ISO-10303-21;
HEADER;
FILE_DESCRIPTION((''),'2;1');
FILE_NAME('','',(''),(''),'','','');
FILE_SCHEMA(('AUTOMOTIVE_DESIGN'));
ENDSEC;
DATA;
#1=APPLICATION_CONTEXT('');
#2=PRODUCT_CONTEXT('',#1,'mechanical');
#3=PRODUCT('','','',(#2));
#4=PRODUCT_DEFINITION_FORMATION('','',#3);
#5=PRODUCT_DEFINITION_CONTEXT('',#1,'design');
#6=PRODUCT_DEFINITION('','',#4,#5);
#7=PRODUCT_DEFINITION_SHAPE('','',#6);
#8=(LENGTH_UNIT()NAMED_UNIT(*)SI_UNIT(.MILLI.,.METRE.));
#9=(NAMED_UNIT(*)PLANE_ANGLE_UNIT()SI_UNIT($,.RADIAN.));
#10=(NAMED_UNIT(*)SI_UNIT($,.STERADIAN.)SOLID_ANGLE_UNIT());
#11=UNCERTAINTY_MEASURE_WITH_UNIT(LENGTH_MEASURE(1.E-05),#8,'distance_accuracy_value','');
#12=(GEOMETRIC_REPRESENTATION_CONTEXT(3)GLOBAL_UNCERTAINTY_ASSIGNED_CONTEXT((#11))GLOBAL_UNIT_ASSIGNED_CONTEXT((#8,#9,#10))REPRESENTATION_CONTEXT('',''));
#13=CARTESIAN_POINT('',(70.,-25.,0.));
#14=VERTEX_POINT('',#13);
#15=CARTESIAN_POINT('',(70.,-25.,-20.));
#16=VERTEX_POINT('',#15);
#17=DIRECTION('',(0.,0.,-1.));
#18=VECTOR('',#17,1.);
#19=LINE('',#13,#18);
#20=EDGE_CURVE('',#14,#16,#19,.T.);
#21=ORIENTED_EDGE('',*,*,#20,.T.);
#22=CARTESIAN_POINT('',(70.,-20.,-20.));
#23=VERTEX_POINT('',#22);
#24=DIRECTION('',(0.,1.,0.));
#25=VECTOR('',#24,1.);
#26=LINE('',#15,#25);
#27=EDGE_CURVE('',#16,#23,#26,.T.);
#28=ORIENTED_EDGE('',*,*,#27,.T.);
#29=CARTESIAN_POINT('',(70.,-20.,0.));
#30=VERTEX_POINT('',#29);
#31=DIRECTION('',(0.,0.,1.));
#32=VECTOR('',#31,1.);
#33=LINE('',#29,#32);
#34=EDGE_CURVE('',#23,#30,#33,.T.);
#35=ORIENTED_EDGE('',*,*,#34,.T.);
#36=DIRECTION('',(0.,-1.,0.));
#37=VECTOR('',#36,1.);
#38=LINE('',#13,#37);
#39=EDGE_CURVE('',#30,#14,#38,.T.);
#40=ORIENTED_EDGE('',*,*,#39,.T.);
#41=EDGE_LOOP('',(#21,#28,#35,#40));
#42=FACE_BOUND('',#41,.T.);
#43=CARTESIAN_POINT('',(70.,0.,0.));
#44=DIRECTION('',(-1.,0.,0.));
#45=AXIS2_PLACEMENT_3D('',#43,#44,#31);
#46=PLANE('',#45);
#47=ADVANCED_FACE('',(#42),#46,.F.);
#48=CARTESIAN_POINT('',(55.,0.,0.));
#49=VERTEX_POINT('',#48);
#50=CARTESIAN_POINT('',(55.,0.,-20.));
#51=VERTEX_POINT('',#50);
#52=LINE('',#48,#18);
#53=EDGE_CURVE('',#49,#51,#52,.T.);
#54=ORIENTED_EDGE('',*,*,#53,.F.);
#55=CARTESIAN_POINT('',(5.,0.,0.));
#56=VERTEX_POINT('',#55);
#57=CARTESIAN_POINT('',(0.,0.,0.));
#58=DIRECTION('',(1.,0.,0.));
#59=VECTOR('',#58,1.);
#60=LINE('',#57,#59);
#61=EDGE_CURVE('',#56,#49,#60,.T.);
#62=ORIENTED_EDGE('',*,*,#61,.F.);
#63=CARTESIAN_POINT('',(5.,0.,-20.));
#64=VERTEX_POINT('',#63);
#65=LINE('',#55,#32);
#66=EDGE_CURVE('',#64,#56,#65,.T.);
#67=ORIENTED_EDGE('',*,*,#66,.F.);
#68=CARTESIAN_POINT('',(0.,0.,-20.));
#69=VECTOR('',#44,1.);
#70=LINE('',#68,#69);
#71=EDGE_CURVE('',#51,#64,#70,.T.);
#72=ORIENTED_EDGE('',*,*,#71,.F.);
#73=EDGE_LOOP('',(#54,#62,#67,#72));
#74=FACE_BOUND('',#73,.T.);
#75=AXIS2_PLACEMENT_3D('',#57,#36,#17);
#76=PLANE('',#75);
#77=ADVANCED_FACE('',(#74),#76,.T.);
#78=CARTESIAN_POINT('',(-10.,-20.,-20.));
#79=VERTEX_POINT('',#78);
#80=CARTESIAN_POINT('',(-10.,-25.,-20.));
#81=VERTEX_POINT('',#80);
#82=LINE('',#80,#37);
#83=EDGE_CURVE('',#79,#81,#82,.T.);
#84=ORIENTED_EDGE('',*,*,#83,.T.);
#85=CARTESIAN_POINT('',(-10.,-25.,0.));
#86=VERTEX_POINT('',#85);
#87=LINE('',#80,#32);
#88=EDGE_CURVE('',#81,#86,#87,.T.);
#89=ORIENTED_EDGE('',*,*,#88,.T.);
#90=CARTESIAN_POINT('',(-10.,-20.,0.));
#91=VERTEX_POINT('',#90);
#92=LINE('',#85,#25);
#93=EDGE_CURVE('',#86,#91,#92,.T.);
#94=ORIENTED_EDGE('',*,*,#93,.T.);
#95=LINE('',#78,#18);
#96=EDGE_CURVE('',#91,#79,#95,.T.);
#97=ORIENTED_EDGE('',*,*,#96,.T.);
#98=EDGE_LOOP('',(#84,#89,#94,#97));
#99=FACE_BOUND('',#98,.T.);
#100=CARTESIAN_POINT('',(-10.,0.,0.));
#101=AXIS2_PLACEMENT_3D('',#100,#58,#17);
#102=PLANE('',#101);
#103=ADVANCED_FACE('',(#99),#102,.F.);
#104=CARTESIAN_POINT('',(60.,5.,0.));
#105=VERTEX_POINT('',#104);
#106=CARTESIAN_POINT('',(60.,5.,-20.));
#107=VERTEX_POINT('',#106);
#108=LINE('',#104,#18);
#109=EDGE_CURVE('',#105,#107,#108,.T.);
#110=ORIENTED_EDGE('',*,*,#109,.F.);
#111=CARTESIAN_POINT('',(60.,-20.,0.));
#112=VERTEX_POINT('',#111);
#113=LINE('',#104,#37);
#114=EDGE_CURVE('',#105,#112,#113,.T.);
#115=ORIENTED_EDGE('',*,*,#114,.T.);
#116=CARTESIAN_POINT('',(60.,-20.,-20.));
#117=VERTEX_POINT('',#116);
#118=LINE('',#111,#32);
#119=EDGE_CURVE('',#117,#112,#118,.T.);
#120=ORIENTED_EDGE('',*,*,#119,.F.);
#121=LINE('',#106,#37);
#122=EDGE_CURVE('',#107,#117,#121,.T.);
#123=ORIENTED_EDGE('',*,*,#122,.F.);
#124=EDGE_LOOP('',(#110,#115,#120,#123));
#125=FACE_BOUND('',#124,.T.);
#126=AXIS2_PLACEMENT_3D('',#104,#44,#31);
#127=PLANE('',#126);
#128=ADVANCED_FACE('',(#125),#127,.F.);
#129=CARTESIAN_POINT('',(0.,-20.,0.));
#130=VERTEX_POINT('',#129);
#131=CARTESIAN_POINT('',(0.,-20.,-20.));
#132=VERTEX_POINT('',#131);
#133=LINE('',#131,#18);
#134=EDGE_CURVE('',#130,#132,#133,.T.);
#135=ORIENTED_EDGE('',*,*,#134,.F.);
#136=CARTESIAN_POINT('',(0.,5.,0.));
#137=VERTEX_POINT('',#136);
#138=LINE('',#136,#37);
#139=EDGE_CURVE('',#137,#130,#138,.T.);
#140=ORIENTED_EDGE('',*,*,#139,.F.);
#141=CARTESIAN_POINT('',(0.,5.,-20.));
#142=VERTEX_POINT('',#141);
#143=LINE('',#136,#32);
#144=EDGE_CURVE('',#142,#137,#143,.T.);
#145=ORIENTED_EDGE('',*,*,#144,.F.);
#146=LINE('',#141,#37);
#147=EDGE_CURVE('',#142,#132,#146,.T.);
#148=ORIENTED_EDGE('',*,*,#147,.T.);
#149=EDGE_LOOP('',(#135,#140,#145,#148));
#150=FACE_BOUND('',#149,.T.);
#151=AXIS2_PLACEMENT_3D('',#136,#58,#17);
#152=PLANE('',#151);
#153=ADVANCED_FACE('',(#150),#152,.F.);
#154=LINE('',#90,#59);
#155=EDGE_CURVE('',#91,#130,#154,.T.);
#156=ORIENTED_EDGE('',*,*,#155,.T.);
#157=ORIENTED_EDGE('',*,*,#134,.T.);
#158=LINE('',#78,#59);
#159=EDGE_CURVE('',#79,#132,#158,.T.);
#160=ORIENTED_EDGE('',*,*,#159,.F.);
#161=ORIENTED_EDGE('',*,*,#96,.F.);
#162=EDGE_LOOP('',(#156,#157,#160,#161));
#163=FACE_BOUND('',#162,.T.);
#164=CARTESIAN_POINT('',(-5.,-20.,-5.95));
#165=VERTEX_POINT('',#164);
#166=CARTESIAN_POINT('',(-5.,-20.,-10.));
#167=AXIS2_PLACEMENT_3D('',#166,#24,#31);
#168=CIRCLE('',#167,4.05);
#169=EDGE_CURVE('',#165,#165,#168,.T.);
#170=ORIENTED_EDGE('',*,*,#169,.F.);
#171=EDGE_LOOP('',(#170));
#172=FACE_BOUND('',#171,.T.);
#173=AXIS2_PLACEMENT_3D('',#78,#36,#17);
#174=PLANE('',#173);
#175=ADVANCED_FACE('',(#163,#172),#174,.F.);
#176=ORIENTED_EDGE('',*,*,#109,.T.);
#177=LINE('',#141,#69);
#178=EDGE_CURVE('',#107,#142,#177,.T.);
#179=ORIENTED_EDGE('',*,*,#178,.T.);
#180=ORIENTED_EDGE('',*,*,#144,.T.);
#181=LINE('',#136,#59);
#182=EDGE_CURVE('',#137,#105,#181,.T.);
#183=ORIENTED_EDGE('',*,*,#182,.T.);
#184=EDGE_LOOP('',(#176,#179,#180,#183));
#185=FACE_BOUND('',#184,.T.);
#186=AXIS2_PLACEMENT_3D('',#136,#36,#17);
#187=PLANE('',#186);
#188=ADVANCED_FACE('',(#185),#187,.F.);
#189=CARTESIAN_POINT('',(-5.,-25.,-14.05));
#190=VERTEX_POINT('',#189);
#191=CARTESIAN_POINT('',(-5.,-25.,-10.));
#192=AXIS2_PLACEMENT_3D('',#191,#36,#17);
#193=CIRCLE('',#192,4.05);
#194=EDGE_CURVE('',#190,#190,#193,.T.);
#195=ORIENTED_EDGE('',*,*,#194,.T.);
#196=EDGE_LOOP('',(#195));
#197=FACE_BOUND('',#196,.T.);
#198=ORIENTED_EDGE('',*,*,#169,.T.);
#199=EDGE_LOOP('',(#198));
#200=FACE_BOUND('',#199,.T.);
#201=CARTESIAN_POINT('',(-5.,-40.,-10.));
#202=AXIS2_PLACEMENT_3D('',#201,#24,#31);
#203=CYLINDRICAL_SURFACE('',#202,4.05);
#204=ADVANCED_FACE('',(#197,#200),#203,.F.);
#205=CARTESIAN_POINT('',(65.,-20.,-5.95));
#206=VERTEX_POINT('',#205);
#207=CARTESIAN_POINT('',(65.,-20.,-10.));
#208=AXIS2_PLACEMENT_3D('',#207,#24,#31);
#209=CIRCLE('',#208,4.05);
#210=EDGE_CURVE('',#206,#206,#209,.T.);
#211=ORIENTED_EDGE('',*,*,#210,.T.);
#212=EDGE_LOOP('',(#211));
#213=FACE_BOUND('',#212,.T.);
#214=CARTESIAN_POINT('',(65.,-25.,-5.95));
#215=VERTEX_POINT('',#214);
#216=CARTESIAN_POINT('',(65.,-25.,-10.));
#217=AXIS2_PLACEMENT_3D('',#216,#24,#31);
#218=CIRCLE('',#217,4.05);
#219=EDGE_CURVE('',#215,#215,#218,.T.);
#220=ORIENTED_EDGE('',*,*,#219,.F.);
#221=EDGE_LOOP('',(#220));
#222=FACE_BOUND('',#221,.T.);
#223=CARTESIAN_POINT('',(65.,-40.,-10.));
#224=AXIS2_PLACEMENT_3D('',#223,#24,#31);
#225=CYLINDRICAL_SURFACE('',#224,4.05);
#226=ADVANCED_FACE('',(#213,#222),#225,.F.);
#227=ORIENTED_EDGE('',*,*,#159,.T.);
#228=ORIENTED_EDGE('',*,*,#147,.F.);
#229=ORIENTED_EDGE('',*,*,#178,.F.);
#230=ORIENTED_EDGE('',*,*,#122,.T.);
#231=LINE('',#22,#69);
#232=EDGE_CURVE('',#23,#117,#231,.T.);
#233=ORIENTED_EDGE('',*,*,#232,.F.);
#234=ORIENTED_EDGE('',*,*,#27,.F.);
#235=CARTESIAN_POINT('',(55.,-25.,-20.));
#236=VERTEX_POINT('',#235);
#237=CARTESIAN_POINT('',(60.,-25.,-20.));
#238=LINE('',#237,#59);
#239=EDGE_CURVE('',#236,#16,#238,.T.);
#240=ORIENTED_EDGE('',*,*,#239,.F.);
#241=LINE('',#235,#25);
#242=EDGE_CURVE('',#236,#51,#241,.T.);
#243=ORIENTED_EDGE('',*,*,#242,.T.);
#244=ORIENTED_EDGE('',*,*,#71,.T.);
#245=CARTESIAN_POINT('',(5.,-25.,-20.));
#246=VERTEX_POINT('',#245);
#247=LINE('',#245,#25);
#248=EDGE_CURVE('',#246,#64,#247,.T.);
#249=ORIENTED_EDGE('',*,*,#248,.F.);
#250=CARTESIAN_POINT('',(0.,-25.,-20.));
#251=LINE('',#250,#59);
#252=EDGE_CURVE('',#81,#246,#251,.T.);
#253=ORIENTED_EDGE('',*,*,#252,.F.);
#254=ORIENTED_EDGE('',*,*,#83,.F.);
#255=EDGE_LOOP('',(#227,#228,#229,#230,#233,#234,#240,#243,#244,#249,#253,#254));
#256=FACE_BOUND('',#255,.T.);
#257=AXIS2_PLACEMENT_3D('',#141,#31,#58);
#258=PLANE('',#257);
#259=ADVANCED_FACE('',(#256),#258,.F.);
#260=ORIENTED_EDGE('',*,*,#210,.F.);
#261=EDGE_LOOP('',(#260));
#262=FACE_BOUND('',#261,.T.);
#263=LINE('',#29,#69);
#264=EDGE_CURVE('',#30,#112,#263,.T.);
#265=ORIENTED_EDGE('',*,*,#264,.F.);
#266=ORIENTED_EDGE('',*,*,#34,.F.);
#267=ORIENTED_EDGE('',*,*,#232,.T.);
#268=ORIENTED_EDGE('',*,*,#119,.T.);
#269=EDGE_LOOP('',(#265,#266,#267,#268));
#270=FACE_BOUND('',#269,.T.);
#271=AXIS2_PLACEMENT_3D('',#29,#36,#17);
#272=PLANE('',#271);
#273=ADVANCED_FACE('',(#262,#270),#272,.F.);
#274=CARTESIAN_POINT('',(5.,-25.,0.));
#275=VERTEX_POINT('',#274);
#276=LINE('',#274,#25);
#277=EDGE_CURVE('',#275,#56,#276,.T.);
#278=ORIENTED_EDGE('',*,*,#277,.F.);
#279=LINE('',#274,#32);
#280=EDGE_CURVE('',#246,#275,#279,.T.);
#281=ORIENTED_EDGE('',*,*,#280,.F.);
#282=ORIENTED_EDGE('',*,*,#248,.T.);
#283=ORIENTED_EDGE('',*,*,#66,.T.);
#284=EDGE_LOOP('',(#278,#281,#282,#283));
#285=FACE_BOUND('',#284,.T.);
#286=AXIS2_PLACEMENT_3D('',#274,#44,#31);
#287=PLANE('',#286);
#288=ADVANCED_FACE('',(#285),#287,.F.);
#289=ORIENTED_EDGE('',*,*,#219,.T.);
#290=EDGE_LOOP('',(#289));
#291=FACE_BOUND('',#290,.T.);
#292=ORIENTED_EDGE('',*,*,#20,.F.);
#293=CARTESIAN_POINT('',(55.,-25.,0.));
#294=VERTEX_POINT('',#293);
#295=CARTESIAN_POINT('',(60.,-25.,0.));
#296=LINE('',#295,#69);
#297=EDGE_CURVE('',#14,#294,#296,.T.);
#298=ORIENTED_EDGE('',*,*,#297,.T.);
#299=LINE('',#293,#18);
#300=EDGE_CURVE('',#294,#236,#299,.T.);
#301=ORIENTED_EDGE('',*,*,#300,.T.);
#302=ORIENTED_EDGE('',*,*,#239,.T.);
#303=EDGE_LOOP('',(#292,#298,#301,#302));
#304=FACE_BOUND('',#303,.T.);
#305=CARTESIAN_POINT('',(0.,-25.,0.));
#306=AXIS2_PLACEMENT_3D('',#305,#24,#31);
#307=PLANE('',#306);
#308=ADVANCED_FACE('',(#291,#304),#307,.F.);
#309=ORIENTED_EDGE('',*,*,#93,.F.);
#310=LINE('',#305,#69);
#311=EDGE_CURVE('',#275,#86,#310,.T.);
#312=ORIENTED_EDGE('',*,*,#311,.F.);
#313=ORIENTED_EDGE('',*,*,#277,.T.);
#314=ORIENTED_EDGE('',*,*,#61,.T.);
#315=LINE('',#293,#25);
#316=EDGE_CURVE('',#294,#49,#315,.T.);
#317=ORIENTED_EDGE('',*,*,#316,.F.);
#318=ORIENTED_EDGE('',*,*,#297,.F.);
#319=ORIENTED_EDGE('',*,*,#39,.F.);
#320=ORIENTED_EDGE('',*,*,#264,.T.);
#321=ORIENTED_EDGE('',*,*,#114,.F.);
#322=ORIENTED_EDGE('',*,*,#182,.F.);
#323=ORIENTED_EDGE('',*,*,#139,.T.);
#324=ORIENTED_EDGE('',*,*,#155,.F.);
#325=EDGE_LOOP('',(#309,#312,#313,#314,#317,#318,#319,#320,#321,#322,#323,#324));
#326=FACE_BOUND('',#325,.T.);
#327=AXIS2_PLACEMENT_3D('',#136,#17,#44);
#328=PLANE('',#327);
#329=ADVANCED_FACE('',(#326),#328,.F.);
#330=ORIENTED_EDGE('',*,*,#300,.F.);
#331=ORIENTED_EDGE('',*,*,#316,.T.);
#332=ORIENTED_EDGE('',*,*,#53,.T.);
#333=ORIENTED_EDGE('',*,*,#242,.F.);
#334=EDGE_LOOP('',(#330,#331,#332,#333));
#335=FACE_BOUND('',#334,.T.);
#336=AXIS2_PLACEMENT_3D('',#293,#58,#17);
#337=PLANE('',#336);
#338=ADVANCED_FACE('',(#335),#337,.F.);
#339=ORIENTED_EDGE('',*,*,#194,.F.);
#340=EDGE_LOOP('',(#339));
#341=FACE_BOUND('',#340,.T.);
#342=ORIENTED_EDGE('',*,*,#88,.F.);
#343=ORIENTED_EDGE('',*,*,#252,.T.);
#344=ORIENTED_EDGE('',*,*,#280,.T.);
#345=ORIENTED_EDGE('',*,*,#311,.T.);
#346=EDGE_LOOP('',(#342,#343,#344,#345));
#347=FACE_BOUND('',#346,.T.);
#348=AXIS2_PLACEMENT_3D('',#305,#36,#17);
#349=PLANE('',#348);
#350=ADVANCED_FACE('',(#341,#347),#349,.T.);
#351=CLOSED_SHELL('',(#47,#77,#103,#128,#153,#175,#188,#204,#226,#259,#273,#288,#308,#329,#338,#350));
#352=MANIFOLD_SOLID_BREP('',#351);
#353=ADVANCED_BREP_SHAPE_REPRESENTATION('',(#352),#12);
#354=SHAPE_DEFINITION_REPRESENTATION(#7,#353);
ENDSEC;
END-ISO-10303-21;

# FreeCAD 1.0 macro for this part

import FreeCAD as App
import Part
import Sketcher
from FreeCAD import Vector

doc = App.newDocument("Part")
body = doc.addObject("PartDesign::Body", "Body")

# Sketch on XZ plane
sketch1 = body.newObject("Sketcher::SketchObject", "Sketch")
sketch1.AttachmentSupport = (doc.getObject("XZ_Plane"), [""])
sketch1.MapMode = "FlatFace"
sketch1.addGeometry([
    Part.LineSegment(Vector(0, -20, 0), Vector(0, 0, 0)),
    Part.LineSegment(Vector(0, 0, 0), Vector(60, 0, 0)),
    Part.LineSegment(Vector(60, 0, 0), Vector(60, -20, 0)),
    Part.LineSegment(Vector(60, -20, 0), Vector(0, -20, 0)),
], False)
sketch1.addConstraint([
    Sketcher.Constraint("Coincident", 0, 2, 1, 1),
    Sketcher.Constraint("Coincident", 1, 2, 2, 1),
    Sketcher.Constraint("Coincident", 2, 2, 3, 1),
    Sketcher.Constraint("Coincident", 3, 2, 0, 1),
    Sketcher.Constraint("Vertical", 0),
    Sketcher.Constraint("Horizontal", 1),
    Sketcher.Constraint("Vertical", 2),
    Sketcher.Constraint("Horizontal", 3),
    Sketcher.Constraint("Coincident", 0, 2, -1, 1),
    Sketcher.Constraint("DistanceX", 1, 1, 1, 2, 60.0),
    Sketcher.Constraint("DistanceY", 0, 1, 0, 2, 20.0),
])
pad1 = body.newObject("PartDesign::Pad", "Pad")
pad1.Profile = sketch1
pad1.Length = 5
pad1.Reversed = True

# Sketch on XZ plane
sketch2 = body.newObject("Sketcher::SketchObject", "Sketch001")
sketch2.AttachmentSupport = (doc.getObject("XZ_Plane"), [""])
sketch2.MapMode = "FlatFace"
sketch2.addGeometry([
    Part.LineSegment(Vector(0, 0, 0), Vector(0, -20, 0)),  # 0
    Part.LineSegment(Vector(0, -20, 0), Vector(5, -20, 0)),  # 1
    Part.LineSegment(Vector(5, -20, 0), Vector(5, 0, 0)),  # 2
    Part.LineSegment(Vector(5, 0, 0), Vector(0, 0, 0)),  # 3
    Part.LineSegment(Vector(55, 0, 0), Vector(55, -20, 0)),  # 4
    Part.LineSegment(Vector(55, -20, 0), Vector(60, -20, 0)),  # 5
    Part.LineSegment(Vector(60, -20, 0), Vector(60, 0, 0)),  # 6
    Part.LineSegment(Vector(60, 0, 0), Vector(55, 0, 0)),  # 7
], False)
sketch2.addConstraint([
    Sketcher.Constraint("Coincident", 0, 2, 1, 1),
    Sketcher.Constraint("Coincident", 1, 2, 2, 1),
    Sketcher.Constraint("Coincident", 2, 2, 3, 1),
    Sketcher.Constraint("Coincident", 3, 2, 0, 1),
    Sketcher.Constraint("Coincident", 4, 2, 5, 1),
    Sketcher.Constraint("Coincident", 5, 2, 6, 1),
    Sketcher.Constraint("Coincident", 6, 2, 7, 1),
    Sketcher.Constraint("Coincident", 7, 2, 4, 1),
    Sketcher.Constraint("Vertical", 0),
    Sketcher.Constraint("Horizontal", 1),
    Sketcher.Constraint("Vertical", 2),
    Sketcher.Constraint("Horizontal", 3),
    Sketcher.Constraint("Vertical", 4),
    Sketcher.Constraint("Horizontal", 5),
    Sketcher.Constraint("Vertical", 6),
    Sketcher.Constraint("Horizontal", 7),
    Sketcher.Constraint("Coincident", 3, 2, -1, 1),
    Sketcher.Constraint("PointOnObject", 6, 2, -1),
    Sketcher.Constraint("Horizontal", 1, 2, 4, 2),
    Sketcher.Constraint("Equal", 3, 5),
    Sketcher.Constraint("DistanceX", 1, 1, 1, 2, 5.0),
    Sketcher.Constraint("DistanceY", 0, 2, 0, 1, 20.0),
    Sketcher.Constraint("DistanceX", -1, 1, 4, 2, 55.0),
])
pad2 = body.newObject("PartDesign::Pad", "Pad001")
pad2.Profile = sketch2
pad2.Length = 25

# Sketch on YZ plane
sketch3 = body.newObject("Sketcher::SketchObject", "Sketch002")
sketch3.AttachmentSupport = (doc.getObject("YZ_Plane"), [""])
sketch3.MapMode = "FlatFace"
sketch3.AttachmentOffset = App.Placement(Vector(0, 0, 60), App.Rotation())
sketch3.addGeometry([
    Part.LineSegment(Vector(-20, 0, 0), Vector(-25, 0, 0)),
    Part.LineSegment(Vector(-25, 0, 0), Vector(-25, -20, 0)),
    Part.LineSegment(Vector(-25, -20, 0), Vector(-20, -20, 0)),
    Part.LineSegment(Vector(-20, -20, 0), Vector(-20, 0, 0)),
], False)
sketch3.addConstraint([
    Sketcher.Constraint("Coincident", 0, 2, 1, 1),
    Sketcher.Constraint("Coincident", 1, 2, 2, 1),
    Sketcher.Constraint("Coincident", 2, 2, 3, 1),
    Sketcher.Constraint("Coincident", 3, 2, 0, 1),
    Sketcher.Constraint("Horizontal", 0),
    Sketcher.Constraint("Vertical", 1),
    Sketcher.Constraint("Horizontal", 2),
    Sketcher.Constraint("Vertical", 3),
    Sketcher.Constraint("PointOnObject", 0, 2, -1),
    Sketcher.Constraint("DistanceX", 0, 2, 0, 1, 5.0),
    Sketcher.Constraint("DistanceY", 1, 2, 1, 1, 20.0),
    Sketcher.Constraint("DistanceX", 0, 2, -1, 1, 25.0),
])
pad3 = body.newObject("PartDesign::Pad", "Pad002")
pad3.Profile = sketch3
pad3.Length = 10

# Sketch on YZ plane
sketch4 = body.newObject("Sketcher::SketchObject", "Sketch003")
sketch4.AttachmentSupport = (doc.getObject("YZ_Plane"), [""])
sketch4.MapMode = "FlatFace"
sketch4.addGeometry([
    Part.LineSegment(Vector(-20, -20, 0), Vector(-25, -20, 0)),
    Part.LineSegment(Vector(-25, -20, 0), Vector(-25, 0, 0)),
    Part.LineSegment(Vector(-25, 0, 0), Vector(-20, 0, 0)),
    Part.LineSegment(Vector(-20, 0, 0), Vector(-20, -20, 0)),
], False)
sketch4.addConstraint([
    Sketcher.Constraint("Coincident", 0, 2, 1, 1),
    Sketcher.Constraint("Coincident", 1, 2, 2, 1),
    Sketcher.Constraint("Coincident", 2, 2, 3, 1),
    Sketcher.Constraint("Coincident", 3, 2, 0, 1),
    Sketcher.Constraint("Horizontal", 0),
    Sketcher.Constraint("Vertical", 1),
    Sketcher.Constraint("Horizontal", 2),
    Sketcher.Constraint("Vertical", 3),
    Sketcher.Constraint("PointOnObject", 1, 2, -1),
    Sketcher.Constraint("DistanceX", 0, 2, 0, 1, 5.0),
    Sketcher.Constraint("DistanceY", 1, 1, 1, 2, 20.0),
    Sketcher.Constraint("DistanceX", 0, 2, -1, 1, 25.0),
])
pad4 = body.newObject("PartDesign::Pad", "Pad003")
pad4.Profile = sketch4
pad4.Length = 10
pad4.Reversed = True

# Sketch on XZ plane
sketch5 = body.newObject("Sketcher::SketchObject", "Sketch004")
sketch5.AttachmentSupport = (doc.getObject("XZ_Plane"), [""])
sketch5.MapMode = "FlatFace"
sketch5.AttachmentOffset = App.Placement(Vector(0, 0, 20), App.Rotation())
sketch5.addGeometry([
    Part.Circle(Vector(65, -10, 0), Vector(0, 0, 1), 4.05),
    Part.Circle(Vector(-5, -10, 0), Vector(0, 0, 1), 4.05),
], False)
sketch5.addConstraint([
    Sketcher.Constraint("Equal", 0, 1),
    Sketcher.Constraint("Horizontal", 0, 3, 1, 3),
    Sketcher.Constraint("Diameter", 0, 8.1),
    Sketcher.Constraint("DistanceX", -1, 1, 0, 3, 65.0),
    Sketcher.Constraint("DistanceY", 0, 3, -1, 1, 10.0),
    Sketcher.Constraint("DistanceX", 1, 3, -1, 1, 5.0),
])
pocket1 = body.newObject("PartDesign::Pocket", "Pocket")
pocket1.Profile = sketch5
pocket1.Length = 20
pocket1.Reversed = True

doc.recompute()
